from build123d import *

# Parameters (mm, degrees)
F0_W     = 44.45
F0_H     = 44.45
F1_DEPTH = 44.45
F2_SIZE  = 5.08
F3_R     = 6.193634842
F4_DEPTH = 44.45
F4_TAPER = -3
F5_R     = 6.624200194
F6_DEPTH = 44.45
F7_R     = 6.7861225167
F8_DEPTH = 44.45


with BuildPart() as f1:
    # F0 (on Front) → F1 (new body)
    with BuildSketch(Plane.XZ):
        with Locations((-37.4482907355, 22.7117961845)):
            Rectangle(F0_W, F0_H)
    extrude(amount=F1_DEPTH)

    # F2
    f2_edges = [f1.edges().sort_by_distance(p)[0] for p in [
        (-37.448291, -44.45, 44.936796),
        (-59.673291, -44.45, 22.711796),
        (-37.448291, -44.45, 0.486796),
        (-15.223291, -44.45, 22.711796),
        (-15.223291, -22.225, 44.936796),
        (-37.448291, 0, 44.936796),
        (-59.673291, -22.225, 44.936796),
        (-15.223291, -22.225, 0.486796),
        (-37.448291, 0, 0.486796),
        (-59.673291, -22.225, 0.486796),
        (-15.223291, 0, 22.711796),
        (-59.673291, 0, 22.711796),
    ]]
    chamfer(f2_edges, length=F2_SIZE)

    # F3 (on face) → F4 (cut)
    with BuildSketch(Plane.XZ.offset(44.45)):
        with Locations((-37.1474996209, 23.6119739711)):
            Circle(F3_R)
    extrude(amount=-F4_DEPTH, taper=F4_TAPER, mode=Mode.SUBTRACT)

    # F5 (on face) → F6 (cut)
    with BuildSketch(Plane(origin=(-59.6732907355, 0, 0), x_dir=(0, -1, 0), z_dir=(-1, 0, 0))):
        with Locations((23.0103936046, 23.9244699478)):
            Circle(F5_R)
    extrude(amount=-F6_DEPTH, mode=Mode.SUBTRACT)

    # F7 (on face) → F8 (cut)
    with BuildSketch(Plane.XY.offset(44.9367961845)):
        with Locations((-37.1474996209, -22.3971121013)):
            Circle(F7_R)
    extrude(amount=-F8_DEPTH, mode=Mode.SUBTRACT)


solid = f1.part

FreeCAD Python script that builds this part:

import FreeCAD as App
import Part
import Sketcher
Q = App.Units.Quantity

doc = App.newDocument("Part")
body = doc.addObject("PartDesign::Body", "Body")

# Sketch on XZ plane
sketch1 = body.newObject("Sketcher::SketchObject", "Sketch")
sketch1.AttachmentSupport = (doc.getObject("XZ_Plane"), [""])
sketch1.MapMode = "FlatFace"
sketch1.addGeometry([
    Part.LineSegment(App.Vector(-60, 45, 0), App.Vector(-60, 0, 0)),
    Part.LineSegment(App.Vector(-60, 0, 0), App.Vector(-15, 0, 0)),
    Part.LineSegment(App.Vector(-15, 0, 0), App.Vector(-15, 45, 0)),
    Part.LineSegment(App.Vector(-15, 45, 0), App.Vector(-60, 45, 0)),
], False)
sketch1.addConstraint([
    Sketcher.Constraint("Coincident", 0, 2, 1, 1),
    Sketcher.Constraint("Coincident", 1, 2, 2, 1),
    Sketcher.Constraint("Coincident", 2, 2, 3, 1),
    Sketcher.Constraint("Coincident", 3, 2, 0, 1),
    Sketcher.Constraint("Vertical", 0),
    Sketcher.Constraint("Horizontal", 1),
    Sketcher.Constraint("Vertical", 2),
    Sketcher.Constraint("Horizontal", 3),
    Sketcher.Constraint("Equal", 3, 0),
    Sketcher.Constraint("DistanceX", 1, 1, 1, 2, Q("1.75 in")),
    Sketcher.Constraint("DistanceX", 0, 2, -1, 1, 59.673291),
    Sketcher.Constraint("DistanceY", -1, 1, 0, 2, 0.486796),
])
pad1 = body.newObject("PartDesign::Pad", "Pad")
pad1.Profile = sketch1
pad1.Length = Q("1.75 in")
doc.recompute()

chamfer = body.newObject("PartDesign::Chamfer", "Chamfer")
chamfer.Base = (pad1, ["Edge1"])
chamfer.UseAllEdges = True
chamfer.Size = Q("0.2 in")

# Sketch on XZ plane
sketch2 = body.newObject("Sketcher::SketchObject", "Sketch001")
sketch2.AttachmentSupport = (doc.getObject("XZ_Plane"), [""])
sketch2.MapMode = "FlatFace"
sketch2.AttachmentOffset = App.Placement(App.Vector(0, 0, 1.75 * 25.4), App.Rotation())
sketch2.addGeometry(Part.Circle(App.Vector(-37, 24, 0), App.Vector(0, 0, 1), 6), False)
sketch2.addConstraint([
    Sketcher.Constraint("Diameter", 0, 12.38727),
    Sketcher.Constraint("DistanceX", 0, 3, -1, 1, Q("1.4625 in")),
    Sketcher.Constraint("DistanceY", -1, 1, 0, 3, 23.611974),
])
pocket1 = body.newObject("PartDesign::Pocket", "Pocket")
pocket1.Profile = sketch2
pocket1.Length = Q("1.75 in")
pocket1.TaperAngle = 3

# Sketch on YZ plane
sketch3 = body.newObject("Sketcher::SketchObject", "Sketch002")
sketch3.AttachmentSupport = (doc.getObject("YZ_Plane"), [""])
sketch3.MapMode = "FlatFace"
sketch3.AttachmentOffset = App.Placement(App.Vector(0, 0, -59.673291), App.Rotation())
sketch3.addGeometry(Part.Circle(App.Vector(-23, 24, 0), App.Vector(0, 0, 1), 7), False)
sketch3.addConstraint([
    Sketcher.Constraint("Diameter", 0, 13.2484),
    Sketcher.Constraint("DistanceY", -1, 1, 0, 3, 23.92447),
    Sketcher.Constraint("DistanceX", 0, 3, -1, 1, 23.010394),
])
pocket2 = body.newObject("PartDesign::Pocket", "Pocket001")
pocket2.Profile = sketch3
pocket2.Length = Q("1.75 in")
pocket2.Reversed = True

# Sketch on XY plane
sketch4 = body.newObject("Sketcher::SketchObject", "Sketch003")
sketch4.AttachmentSupport = (doc.getObject("XY_Plane"), [""])
sketch4.MapMode = "FlatFace"
sketch4.AttachmentOffset = App.Placement(App.Vector(0, 0, 44.936796), App.Rotation())
sketch4.addGeometry(Part.Circle(App.Vector(-37, -22, 0), App.Vector(0, 0, 1), 7), False)
sketch4.addConstraint([
    Sketcher.Constraint("Diameter", 0, 13.572245),
    Sketcher.Constraint("DistanceX", 0, 3, -1, 1, Q("1.4625 in")),
    Sketcher.Constraint("DistanceY", 0, 3, -1, 1, 22.397112),
])
pocket3 = body.newObject("PartDesign::Pocket", "Pocket002")
pocket3.Profile = sketch4
pocket3.Length = Q("1.75 in")

doc.recompute()
